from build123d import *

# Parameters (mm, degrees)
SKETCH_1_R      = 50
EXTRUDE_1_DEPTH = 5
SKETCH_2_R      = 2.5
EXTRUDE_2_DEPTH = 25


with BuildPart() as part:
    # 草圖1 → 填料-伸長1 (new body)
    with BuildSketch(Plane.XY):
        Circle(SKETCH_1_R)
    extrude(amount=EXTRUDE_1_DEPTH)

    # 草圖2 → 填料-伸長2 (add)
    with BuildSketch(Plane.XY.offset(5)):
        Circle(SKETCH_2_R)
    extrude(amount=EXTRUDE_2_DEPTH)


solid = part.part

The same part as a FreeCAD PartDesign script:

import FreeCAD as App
import Part
import Sketcher
from FreeCAD import Vector

doc = App.newDocument("Part")
params = doc.addObject("Spreadsheet::Sheet", "Params")
for row, (alias, value) in enumerate([
    ("sketch1_diameter", "100 mm"),
    ("pad1_length", "5 mm"),
    ("sketch2_diameter", "5 mm"),
    ("pad2_length", "25 mm"),
], start=1):
    params.set(f"A{row}", alias)
    params.set(f"B{row}", "=" + value)
    params.setAlias(f"B{row}", alias)

body = doc.addObject("PartDesign::Body", "Body")

# Sketch on XY plane
sketch1 = doc.addObject("Sketcher::SketchObject", "Sketch")
body.addObject(sketch1)
sketch1.AttachmentSupport = (doc.XY_Plane, [""])
sketch1.MapMode = "FlatFace"
sketch1.addGeometry(Part.Circle(Vector(0, 0, 0), Vector(0, 0, 1), 50), False)
sketch1.addConstraint([
    Sketcher.Constraint("Coincident", 0, 3, -1, 1),
    Sketcher.Constraint("Diameter", 0, 100.0),
])
sketch1.setExpression("Constraints[1]", "Params.sketch1_diameter")
pad1 = doc.addObject("PartDesign::Pad", "Pad")
body.addObject(pad1)
pad1.Profile = sketch1
pad1.setExpression("Length", "Params.pad1_length")

# Sketch on XY plane
sketch2 = doc.addObject("Sketcher::SketchObject", "Sketch001")
body.addObject(sketch2)
sketch2.AttachmentSupport = (doc.XY_Plane, [""])
sketch2.MapMode = "FlatFace"
sketch2.AttachmentOffset = App.Placement(Vector(0, 0, 5), App.Rotation())
sketch2.addGeometry(Part.Circle(Vector(0, 0, 0), Vector(0, 0, 1), 2.5), False)
sketch2.addConstraint([
    Sketcher.Constraint("Coincident", 0, 3, -1, 1),
    Sketcher.Constraint("Diameter", 0, 5.0),
])
sketch2.setExpression("Constraints[1]", "Params.sketch2_diameter")
pad2 = doc.addObject("PartDesign::Pad", "Pad001")
body.addObject(pad2)
pad2.Profile = sketch2
pad2.setExpression("Length", "Params.pad2_length")

doc.recompute()
